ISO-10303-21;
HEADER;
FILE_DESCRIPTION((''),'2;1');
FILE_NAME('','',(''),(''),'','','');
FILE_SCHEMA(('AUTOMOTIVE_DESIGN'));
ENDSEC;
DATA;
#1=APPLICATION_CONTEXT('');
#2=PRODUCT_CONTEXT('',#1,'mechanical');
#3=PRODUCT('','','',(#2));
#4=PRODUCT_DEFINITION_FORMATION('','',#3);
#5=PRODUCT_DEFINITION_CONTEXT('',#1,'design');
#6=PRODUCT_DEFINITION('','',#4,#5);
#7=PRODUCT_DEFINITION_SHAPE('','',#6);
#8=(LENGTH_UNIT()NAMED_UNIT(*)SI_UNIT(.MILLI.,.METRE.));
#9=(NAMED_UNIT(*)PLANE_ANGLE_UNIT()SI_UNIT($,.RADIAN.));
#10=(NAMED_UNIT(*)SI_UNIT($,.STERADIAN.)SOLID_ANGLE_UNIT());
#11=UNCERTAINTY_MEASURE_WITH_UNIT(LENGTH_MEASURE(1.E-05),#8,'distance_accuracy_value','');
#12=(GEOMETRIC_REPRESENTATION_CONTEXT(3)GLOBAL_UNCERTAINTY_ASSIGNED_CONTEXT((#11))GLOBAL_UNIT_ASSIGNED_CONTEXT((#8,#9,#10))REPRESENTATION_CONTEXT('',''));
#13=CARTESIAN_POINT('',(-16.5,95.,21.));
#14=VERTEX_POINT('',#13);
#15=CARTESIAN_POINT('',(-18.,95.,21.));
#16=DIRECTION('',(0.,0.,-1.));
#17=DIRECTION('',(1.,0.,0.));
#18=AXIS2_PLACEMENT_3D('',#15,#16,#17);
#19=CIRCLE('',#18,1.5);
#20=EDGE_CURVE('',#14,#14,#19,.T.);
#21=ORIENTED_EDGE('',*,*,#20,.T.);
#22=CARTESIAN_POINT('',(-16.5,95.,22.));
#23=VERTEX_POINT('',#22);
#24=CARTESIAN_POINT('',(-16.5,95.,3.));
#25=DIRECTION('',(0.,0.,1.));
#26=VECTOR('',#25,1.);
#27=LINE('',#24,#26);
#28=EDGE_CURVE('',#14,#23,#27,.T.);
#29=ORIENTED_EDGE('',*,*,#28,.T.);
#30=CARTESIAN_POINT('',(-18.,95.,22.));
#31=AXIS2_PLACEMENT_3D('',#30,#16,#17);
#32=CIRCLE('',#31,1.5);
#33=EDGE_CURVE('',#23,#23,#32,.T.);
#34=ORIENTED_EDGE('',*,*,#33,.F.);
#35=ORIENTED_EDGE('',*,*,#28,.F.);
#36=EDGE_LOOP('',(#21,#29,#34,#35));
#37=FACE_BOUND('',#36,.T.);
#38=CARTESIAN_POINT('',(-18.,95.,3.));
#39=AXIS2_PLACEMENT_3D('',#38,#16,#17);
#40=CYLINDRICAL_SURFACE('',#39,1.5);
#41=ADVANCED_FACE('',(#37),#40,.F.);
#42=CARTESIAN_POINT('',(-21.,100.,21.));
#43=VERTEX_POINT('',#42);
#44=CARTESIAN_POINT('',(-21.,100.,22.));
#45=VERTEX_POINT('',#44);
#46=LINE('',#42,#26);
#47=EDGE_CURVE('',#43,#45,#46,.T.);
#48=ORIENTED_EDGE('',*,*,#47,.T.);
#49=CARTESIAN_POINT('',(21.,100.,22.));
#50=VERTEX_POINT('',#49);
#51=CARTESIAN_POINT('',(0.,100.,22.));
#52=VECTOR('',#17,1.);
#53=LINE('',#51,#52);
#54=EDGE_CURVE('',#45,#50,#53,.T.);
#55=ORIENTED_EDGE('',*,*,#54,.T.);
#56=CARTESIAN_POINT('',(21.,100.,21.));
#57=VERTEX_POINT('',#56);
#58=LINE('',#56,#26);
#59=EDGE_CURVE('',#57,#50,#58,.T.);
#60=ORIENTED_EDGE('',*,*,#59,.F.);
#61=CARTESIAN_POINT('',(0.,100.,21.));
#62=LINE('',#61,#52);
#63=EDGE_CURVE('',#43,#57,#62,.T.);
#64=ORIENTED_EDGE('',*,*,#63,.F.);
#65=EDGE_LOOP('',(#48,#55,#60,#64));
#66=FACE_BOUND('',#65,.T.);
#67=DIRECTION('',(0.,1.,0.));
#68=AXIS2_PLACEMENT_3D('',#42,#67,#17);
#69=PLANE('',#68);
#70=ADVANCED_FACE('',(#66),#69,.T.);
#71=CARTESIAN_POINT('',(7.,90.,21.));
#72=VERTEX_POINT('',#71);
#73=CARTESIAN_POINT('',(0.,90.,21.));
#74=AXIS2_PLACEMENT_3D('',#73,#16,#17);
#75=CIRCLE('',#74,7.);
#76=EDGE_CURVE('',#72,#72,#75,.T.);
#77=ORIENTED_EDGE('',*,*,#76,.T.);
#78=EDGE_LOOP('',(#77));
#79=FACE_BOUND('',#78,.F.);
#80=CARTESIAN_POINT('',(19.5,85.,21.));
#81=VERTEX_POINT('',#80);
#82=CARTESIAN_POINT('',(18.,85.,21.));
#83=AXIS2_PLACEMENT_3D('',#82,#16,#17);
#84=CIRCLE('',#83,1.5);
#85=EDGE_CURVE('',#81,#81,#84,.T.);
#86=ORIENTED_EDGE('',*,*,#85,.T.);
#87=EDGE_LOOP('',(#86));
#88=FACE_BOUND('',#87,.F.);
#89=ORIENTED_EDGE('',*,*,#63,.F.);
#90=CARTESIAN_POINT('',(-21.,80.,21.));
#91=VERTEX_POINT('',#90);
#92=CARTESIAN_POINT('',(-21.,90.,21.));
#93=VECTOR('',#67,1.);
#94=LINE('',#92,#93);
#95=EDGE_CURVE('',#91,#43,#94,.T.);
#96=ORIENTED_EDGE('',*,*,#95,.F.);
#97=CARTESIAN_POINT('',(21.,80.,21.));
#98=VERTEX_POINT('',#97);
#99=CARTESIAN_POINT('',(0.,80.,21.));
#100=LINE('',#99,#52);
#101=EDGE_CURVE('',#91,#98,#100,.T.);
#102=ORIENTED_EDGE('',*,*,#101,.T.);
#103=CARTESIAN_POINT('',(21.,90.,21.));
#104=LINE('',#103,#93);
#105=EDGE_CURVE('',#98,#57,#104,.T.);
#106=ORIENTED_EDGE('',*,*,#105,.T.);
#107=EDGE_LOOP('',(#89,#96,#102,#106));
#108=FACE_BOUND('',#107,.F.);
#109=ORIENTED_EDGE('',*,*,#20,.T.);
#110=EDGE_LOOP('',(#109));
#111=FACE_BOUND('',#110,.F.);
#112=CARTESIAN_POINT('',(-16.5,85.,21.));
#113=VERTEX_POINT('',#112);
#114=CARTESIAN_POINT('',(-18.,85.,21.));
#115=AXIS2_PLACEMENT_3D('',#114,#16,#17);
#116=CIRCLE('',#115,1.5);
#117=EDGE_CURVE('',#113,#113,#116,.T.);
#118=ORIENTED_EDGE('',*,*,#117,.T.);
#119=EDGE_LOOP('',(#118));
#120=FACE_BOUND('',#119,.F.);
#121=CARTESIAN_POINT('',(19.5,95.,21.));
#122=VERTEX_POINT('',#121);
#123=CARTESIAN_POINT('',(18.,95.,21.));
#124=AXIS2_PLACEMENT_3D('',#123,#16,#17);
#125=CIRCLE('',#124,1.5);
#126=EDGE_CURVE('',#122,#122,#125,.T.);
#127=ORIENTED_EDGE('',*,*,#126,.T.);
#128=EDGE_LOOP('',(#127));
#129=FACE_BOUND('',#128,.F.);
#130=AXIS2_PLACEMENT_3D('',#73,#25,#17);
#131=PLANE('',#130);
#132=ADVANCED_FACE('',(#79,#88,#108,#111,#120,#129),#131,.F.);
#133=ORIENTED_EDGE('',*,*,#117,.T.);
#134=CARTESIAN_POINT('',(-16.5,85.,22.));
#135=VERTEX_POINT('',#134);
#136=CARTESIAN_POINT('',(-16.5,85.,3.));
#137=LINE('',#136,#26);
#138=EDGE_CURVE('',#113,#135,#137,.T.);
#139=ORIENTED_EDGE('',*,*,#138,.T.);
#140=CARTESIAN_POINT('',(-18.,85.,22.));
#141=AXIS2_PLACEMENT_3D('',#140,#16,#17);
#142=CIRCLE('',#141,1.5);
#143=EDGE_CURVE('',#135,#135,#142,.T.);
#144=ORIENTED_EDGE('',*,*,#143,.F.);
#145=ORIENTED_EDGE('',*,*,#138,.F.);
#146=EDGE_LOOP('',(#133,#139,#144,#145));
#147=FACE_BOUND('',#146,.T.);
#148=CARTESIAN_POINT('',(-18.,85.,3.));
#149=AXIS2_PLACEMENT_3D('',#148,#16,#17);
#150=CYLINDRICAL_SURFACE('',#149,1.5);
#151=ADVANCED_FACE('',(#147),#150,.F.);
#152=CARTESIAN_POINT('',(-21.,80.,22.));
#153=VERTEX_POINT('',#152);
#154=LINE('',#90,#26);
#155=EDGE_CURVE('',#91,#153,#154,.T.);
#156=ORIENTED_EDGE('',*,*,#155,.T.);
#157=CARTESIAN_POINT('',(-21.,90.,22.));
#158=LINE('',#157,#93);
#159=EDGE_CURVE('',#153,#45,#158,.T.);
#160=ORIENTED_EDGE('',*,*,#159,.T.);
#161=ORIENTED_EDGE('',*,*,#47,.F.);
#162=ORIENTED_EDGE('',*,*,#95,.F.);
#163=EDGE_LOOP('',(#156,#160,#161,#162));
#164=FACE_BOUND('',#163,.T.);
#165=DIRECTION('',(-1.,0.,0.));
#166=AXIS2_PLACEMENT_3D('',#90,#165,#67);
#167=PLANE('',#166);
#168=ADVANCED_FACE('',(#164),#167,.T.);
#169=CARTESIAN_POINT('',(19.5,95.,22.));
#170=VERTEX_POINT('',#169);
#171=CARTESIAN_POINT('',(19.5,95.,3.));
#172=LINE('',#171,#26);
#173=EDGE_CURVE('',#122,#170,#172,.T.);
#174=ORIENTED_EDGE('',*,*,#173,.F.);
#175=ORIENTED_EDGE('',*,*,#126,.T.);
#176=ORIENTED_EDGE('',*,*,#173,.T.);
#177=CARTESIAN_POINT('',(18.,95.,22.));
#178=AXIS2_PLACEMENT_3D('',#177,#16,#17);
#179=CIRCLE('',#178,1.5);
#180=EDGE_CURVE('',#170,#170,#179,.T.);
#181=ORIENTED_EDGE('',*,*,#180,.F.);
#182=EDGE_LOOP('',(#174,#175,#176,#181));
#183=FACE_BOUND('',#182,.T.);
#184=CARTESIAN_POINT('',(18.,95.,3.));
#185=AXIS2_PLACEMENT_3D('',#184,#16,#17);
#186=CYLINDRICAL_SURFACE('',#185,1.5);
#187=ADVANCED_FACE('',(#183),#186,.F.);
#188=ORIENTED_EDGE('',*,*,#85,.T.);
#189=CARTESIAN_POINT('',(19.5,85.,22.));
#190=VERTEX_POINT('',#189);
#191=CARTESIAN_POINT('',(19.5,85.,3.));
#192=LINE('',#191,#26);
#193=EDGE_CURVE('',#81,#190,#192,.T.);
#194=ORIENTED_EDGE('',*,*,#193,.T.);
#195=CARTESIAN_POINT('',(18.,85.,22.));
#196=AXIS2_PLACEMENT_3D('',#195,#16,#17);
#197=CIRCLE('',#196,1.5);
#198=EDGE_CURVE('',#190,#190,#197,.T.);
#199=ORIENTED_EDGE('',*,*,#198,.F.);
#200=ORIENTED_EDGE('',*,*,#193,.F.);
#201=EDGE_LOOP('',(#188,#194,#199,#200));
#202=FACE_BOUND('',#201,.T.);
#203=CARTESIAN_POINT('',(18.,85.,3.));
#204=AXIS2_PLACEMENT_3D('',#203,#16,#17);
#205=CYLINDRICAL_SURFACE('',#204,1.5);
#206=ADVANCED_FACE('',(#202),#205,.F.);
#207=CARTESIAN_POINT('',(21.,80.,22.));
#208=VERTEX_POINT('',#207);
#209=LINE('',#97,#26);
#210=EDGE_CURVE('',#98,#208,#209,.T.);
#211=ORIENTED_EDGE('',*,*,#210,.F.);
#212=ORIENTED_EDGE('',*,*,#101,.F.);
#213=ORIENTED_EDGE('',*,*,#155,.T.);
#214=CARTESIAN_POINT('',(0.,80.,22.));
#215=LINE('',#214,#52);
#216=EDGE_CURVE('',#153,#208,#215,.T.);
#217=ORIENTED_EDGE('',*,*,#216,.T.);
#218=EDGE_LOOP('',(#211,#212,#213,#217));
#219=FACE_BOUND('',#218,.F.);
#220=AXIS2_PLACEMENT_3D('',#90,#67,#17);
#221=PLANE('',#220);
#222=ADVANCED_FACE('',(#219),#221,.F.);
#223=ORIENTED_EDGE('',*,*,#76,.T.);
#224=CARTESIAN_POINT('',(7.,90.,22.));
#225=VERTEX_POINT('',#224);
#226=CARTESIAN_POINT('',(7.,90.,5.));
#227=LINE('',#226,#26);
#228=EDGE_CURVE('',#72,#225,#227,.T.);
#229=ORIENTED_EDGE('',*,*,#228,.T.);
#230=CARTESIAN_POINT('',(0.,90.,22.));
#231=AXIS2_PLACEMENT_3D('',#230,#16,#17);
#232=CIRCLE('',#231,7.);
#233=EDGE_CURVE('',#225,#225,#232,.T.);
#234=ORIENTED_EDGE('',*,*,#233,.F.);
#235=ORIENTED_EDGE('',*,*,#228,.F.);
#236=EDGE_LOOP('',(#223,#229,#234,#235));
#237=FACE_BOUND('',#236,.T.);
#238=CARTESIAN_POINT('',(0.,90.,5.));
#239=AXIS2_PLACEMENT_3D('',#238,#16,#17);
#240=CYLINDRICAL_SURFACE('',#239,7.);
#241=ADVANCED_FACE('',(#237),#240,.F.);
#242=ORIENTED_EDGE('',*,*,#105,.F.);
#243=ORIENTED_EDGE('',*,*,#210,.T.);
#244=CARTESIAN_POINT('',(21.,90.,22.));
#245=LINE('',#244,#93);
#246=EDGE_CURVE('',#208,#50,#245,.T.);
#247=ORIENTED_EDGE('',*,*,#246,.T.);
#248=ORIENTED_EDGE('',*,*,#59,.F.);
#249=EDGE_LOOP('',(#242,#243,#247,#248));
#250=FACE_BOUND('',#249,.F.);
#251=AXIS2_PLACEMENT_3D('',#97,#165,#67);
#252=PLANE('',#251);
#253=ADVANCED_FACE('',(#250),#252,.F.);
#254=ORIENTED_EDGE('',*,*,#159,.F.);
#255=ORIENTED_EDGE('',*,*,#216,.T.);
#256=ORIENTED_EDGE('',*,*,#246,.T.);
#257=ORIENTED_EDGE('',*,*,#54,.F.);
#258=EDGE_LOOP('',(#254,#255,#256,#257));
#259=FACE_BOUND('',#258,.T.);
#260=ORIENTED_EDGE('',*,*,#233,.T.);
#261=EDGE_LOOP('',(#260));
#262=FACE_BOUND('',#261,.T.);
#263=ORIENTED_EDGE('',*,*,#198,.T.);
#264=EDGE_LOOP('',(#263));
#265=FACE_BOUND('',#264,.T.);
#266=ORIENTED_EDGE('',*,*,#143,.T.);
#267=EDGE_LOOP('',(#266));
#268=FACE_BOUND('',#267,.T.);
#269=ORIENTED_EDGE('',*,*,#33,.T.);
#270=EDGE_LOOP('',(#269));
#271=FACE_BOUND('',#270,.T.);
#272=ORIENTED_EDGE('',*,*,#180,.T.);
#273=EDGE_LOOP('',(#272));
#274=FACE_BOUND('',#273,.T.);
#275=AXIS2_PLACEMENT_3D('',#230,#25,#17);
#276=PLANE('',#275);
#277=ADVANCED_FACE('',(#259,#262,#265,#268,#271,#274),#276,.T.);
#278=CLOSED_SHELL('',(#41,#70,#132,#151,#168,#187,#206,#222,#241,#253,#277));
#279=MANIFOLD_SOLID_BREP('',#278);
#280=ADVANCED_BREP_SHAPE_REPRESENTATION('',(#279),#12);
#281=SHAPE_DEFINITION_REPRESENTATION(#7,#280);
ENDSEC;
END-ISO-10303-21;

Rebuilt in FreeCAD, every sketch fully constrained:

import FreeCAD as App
import Part
import Sketcher
Q = App.Units.Quantity


def add_polygon(sketch, points):
    """Adds a closed chain of lines whose ends are joined by coincident constraints."""
    first, n = sketch.GeometryCount, len(points)
    for a, b in zip(points, points[1:] + points[:1]):
        sketch.addGeometry(Part.LineSegment(App.Vector(*a, 0), App.Vector(*b, 0)), False)
    for i in range(n):
        sketch.addConstraint(Sketcher.Constraint("Coincident", first + i, 2, first + (i + 1) % n, 1))

doc = App.newDocument("Part")
body = doc.addObject("PartDesign::Body", "Body")

sketch1 = body.newObject("Sketcher::SketchObject", "Sketch")
sketch1.AttachmentSupport = (doc.getObject("XY_Plane"), [""])
sketch1.MapMode = "FlatFace"
sketch1.AttachmentOffset = App.Placement(App.Vector(0, 0, -57), App.Rotation())
sketch1.addGeometry(Part.Circle(App.Vector(18, 85, 0), App.Vector(0, 0, 1), 1.5), False)
sketch1.addConstraint([
    Sketcher.Constraint("Diameter", 0, Q("3 mm")),
    Sketcher.Constraint("DistanceX", -1, 1, 0, 3, Q("18 mm")),
    Sketcher.Constraint("DistanceY", -1, 1, 0, 3, Q("85 mm")),
])
pad1 = body.newObject("PartDesign::Pad", "Pad")
pad1.Profile = sketch1
pad1.Length = 60
body2 = doc.addObject("PartDesign::Body", "Body001")

sketch2 = body2.newObject("Sketcher::SketchObject", "Sketch001")
sketch2.AttachmentSupport = (doc.getObject("XY_Plane001"), [""])
sketch2.MapMode = "FlatFace"
sketch2.AttachmentOffset = App.Placement(App.Vector(0, 0, -57), App.Rotation())
sketch2.addGeometry(Part.Circle(App.Vector(-18, 85, 0), App.Vector(0, 0, 1), 1.5), False)
sketch2.addConstraint([
    Sketcher.Constraint("Diameter", 0, Q("3 mm")),
    Sketcher.Constraint("DistanceX", 0, 3, -1, 1, Q("18 mm")),
    Sketcher.Constraint("DistanceY", -1, 1, 0, 3, Q("85 mm")),
])
pad2 = body2.newObject("PartDesign::Pad", "Pad001")
pad2.Profile = sketch2
pad2.Length = 60
body3 = doc.addObject("PartDesign::Body", "Body002")

sketch3 = body3.newObject("Sketcher::SketchObject", "Sketch002")
sketch3.AttachmentSupport = (doc.getObject("XY_Plane002"), [""])
sketch3.MapMode = "FlatFace"
sketch3.AttachmentOffset = App.Placement(App.Vector(0, 0, -57), App.Rotation())
sketch3.addGeometry(Part.Circle(App.Vector(-18, 95, 0), App.Vector(0, 0, 1), 1.5), False)
sketch3.addConstraint([
    Sketcher.Constraint("Diameter", 0, Q("3 mm")),
    Sketcher.Constraint("DistanceX", 0, 3, -1, 1, Q("18 mm")),
    Sketcher.Constraint("DistanceY", -1, 1, 0, 3, Q("95 mm")),
])
pad3 = body3.newObject("PartDesign::Pad", "Pad002")
pad3.Profile = sketch3
pad3.Length = 60
body4 = doc.addObject("PartDesign::Body", "Body003")
body4.AllowCompound = True

sketch4 = body4.newObject("Sketcher::SketchObject", "Sketch003")
sketch4.AttachmentSupport = (doc.getObject("XY_Plane003"), [""])
sketch4.MapMode = "FlatFace"
sketch4.AttachmentOffset = App.Placement(App.Vector(0, 0, -57), App.Rotation())
sketch4.addGeometry(Part.Circle(App.Vector(18, 95, 0), App.Vector(0, 0, 1), 1.5), False)
sketch4.addConstraint([
    Sketcher.Constraint("Diameter", 0, Q("3 mm")),
    Sketcher.Constraint("DistanceX", -1, 1, 0, 3, Q("18 mm")),
    Sketcher.Constraint("DistanceY", -1, 1, 0, 3, Q("95 mm")),
])
pad4 = body4.newObject("PartDesign::Pad", "Pad003")
pad4.Profile = sketch4
pad4.Length = 60
doc.recompute()

boolean = body4.newObject("PartDesign::Boolean", "Boolean")
boolean.Type = "Fuse"
boolean.addObjects([body])
doc.recompute()

boolean2 = body4.newObject("PartDesign::Boolean", "Boolean001")
boolean2.Type = "Fuse"
boolean2.addObjects([body2])
doc.recompute()

boolean3 = body4.newObject("PartDesign::Boolean", "Boolean002")
boolean3.Type = "Fuse"
boolean3.addObjects([body3])
body5 = doc.addObject("PartDesign::Body", "Body004")

sketch5 = body5.newObject("Sketcher::SketchObject", "Sketch004")
sketch5.AttachmentSupport = (doc.getObject("XY_Plane004"), [""])
sketch5.MapMode = "FlatFace"
sketch5.AttachmentOffset = App.Placement(App.Vector(0, 0, -55), App.Rotation())
sketch5.addGeometry(Part.Circle(App.Vector(0, 90, 0), App.Vector(0, 0, 1), 7), False)
sketch5.addConstraint([
    Sketcher.Constraint("PointOnObject", 0, 3, -2),
    Sketcher.Constraint("Diameter", 0, Q("14 mm")),
    Sketcher.Constraint("DistanceY", -1, 1, 0, 3, Q("90 mm")),
])
pad5 = body5.newObject("PartDesign::Pad", "Pad004")
pad5.Profile = sketch5
pad5.Length = 48
body6 = doc.addObject("PartDesign::Body", "Body005")

sketch6 = body6.newObject("Sketcher::SketchObject", "Sketch005")
sketch6.AttachmentSupport = (doc.getObject("XY_Plane005"), [""])
sketch6.MapMode = "FlatFace"
sketch6.AttachmentOffset = App.Placement(App.Vector(0, 0, -39), App.Rotation())
add_polygon(sketch6, [(-21, 100), (-21, 80), (21, 80), (21, 100)])
sketch6.addConstraint([
    Sketcher.Constraint("Vertical", 0),
    Sketcher.Constraint("Horizontal", 1),
    Sketcher.Constraint("Vertical", 2),
    Sketcher.Constraint("Horizontal", 3),
    Sketcher.Constraint("DistanceX", 1, 1, 1, 2, Q("42 mm")),
    Sketcher.Constraint("DistanceY", 0, 2, 0, 1, Q("20 mm")),
    Sketcher.Constraint("DistanceX", 0, 2, -1, 1, Q("21 mm")),
    Sketcher.Constraint("DistanceY", -1, 1, 0, 2, Q("80 mm")),
])
pad6 = body6.newObject("PartDesign::Pad", "Pad005")
pad6.Profile = sketch6
pad6.Length = 1
doc.recompute()

boolean4 = body6.newObject("PartDesign::Boolean", "Boolean003")
boolean4.Type = "Cut"
boolean4.addObjects([body5])
doc.recompute()

boolean5 = body6.newObject("PartDesign::Boolean", "Boolean004")
boolean5.Type = "Cut"
boolean5.addObjects([body4])
body7 = doc.addObject("PartDesign::Body", "Body006")
doc.recompute()

body6.Placement = App.Placement(App.Vector(0, 0, 60), App.Rotation(App.Vector(0, 0, 1), 0))
boolean6 = body7.newObject("PartDesign::Boolean", "Boolean005")
boolean6.Type = "Fuse"
boolean6.addObjects([body6])

doc.recompute()
